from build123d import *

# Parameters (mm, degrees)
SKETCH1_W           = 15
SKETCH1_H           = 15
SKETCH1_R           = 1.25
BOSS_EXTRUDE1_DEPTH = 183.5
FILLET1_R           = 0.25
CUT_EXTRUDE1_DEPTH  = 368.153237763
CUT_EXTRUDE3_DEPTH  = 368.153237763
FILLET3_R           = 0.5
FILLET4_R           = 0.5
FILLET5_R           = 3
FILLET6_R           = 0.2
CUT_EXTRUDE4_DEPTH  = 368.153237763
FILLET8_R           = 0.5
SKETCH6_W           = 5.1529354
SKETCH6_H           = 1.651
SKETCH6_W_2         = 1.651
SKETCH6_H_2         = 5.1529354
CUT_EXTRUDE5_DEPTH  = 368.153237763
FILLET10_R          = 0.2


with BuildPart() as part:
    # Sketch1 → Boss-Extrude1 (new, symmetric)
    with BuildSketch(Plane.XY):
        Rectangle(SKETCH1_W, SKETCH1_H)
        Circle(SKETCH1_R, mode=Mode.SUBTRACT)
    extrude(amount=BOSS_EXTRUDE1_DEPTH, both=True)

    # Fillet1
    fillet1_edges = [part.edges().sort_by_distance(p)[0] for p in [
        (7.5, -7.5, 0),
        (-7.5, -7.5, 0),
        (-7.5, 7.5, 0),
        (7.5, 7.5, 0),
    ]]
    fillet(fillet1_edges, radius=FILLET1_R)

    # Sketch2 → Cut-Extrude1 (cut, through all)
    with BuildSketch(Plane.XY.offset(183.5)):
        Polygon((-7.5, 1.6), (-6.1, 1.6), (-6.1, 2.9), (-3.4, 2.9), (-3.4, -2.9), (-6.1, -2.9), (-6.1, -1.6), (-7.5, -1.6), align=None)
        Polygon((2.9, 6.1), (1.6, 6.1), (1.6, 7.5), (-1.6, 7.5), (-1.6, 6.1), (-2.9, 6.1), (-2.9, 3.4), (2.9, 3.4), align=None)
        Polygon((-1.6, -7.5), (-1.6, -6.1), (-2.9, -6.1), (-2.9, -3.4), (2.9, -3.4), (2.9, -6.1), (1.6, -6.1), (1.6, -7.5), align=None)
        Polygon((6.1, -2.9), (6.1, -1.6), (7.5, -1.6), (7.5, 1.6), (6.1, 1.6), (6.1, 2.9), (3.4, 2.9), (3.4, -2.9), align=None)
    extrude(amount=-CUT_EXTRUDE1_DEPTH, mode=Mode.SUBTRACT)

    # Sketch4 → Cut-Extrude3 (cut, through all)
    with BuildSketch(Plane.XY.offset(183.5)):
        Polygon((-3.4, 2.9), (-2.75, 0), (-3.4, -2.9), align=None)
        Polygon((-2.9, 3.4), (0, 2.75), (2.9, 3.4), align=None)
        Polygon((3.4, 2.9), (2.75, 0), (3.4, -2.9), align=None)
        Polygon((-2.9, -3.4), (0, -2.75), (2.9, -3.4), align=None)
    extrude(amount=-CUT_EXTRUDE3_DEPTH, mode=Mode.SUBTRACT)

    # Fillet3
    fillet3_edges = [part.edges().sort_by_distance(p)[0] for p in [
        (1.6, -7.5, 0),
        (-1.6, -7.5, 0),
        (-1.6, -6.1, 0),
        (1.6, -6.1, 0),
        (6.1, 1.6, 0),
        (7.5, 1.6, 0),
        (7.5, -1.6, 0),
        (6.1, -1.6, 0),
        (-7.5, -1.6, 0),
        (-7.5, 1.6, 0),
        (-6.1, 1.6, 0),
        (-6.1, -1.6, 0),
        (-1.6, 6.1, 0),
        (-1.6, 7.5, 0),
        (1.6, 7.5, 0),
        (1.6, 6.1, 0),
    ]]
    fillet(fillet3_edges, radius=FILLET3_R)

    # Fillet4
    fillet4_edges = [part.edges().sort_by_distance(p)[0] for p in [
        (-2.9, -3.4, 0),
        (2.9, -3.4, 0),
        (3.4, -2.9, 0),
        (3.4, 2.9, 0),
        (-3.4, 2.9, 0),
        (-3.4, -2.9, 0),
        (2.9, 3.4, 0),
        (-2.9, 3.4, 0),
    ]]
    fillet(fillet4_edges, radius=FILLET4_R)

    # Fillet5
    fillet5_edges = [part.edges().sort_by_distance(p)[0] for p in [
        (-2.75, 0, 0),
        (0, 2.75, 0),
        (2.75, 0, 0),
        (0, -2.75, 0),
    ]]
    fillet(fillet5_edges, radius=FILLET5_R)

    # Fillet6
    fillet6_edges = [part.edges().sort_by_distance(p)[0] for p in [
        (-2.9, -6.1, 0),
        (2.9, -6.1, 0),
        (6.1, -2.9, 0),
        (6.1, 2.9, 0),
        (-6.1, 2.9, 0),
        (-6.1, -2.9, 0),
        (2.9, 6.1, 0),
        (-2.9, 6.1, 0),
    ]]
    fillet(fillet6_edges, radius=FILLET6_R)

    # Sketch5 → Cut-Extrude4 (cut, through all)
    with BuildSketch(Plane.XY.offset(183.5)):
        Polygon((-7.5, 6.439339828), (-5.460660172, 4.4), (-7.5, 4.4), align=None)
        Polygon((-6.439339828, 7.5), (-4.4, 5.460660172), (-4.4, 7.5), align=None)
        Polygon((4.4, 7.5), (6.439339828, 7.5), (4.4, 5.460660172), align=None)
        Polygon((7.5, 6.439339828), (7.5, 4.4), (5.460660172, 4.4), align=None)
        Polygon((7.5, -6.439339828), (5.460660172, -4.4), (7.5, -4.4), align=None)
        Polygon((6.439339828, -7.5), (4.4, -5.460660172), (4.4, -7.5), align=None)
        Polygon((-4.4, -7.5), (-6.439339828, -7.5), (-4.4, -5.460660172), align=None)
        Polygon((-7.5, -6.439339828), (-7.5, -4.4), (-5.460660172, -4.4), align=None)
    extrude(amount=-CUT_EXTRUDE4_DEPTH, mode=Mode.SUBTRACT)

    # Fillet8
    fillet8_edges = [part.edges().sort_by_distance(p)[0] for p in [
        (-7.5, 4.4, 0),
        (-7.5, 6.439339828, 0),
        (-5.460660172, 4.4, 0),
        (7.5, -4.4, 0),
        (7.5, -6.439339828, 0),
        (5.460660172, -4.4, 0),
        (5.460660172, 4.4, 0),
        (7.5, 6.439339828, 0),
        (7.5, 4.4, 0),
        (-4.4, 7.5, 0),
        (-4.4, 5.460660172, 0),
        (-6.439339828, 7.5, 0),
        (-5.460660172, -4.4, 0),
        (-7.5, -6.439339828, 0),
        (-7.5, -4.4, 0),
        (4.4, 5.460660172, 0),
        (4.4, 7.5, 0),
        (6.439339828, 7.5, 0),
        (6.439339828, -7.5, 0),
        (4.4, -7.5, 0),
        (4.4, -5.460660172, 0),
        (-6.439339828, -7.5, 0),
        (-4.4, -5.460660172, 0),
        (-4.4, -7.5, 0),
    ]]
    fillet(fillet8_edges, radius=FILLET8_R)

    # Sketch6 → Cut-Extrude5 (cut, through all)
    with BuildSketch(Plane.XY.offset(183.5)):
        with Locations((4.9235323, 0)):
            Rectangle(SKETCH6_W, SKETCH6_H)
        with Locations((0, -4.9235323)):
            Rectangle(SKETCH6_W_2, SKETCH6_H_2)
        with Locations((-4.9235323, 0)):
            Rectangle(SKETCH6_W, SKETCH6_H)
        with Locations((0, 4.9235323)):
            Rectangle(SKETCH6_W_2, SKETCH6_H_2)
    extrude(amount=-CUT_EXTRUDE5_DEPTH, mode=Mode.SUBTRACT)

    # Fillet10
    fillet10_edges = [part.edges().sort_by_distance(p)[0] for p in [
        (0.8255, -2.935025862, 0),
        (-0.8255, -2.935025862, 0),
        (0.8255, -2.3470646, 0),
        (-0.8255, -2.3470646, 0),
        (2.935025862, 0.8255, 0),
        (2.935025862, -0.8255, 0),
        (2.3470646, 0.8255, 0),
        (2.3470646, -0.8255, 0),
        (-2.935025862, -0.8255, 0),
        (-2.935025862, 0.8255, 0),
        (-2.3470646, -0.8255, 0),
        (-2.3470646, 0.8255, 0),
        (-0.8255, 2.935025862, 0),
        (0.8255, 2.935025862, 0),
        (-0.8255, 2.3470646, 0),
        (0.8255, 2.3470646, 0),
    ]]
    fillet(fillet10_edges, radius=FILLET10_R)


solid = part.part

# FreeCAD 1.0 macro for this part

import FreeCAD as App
import Part
import Sketcher
Q = App.Units.Quantity


def edges_at(feature, points):
    """Names of the edges that pass closest to the given points."""
    edges = feature.Shape.Edges
    near = lambda p: min(range(len(edges)), key=lambda i: edges[i].distToShape(Part.Vertex(*p))[0])
    return sorted({f"Edge{near(p) + 1}" for p in points})


def add_polygon(sketch, points):
    """Adds a closed chain of lines whose ends are joined by coincident constraints."""
    first, n = sketch.GeometryCount, len(points)
    for a, b in zip(points, points[1:] + points[:1]):
        sketch.addGeometry(Part.LineSegment(App.Vector(*a, 0), App.Vector(*b, 0)), False)
    for i in range(n):
        sketch.addConstraint(Sketcher.Constraint("Coincident", first + i, 2, first + (i + 1) % n, 1))

doc = App.newDocument("Part")
body = doc.addObject("PartDesign::Body", "Body")

sketch1 = body.newObject("Sketcher::SketchObject", "Sketch")
sketch1.AttachmentSupport = (doc.getObject("XY_Plane"), [""])
sketch1.MapMode = "FlatFace"
add_polygon(sketch1, [(-7.5, 7.5), (-7.5, -7.5), (7.5, -7.5), (7.5, 7.5)])
sketch1.addGeometry(Part.Circle(App.Vector(0, 0, 0), App.Vector(0, 0, 1), 1.2), False)
sketch1.addConstraint(Sketcher.Constraint("Vertical", 0))
sketch1.addConstraint(Sketcher.Constraint("Horizontal", 1))
sketch1.addConstraint(Sketcher.Constraint("Vertical", 2))
sketch1.addConstraint(Sketcher.Constraint("Horizontal", 3))
sketch1.addConstraint(Sketcher.Constraint("Coincident", 4, 3, -1, 1))
sketch1.addConstraint(Sketcher.Constraint("Symmetric", 0, 2, 2, 2, -1, 1))
sketch1.addConstraint(Sketcher.Constraint("Equal", 3, 0))
sketch1.addConstraint(Sketcher.Constraint("Diameter", 4, Q("2.5 mm")))
sketch1.addConstraint(Sketcher.Constraint("DistanceX", 1, 1, 1, 2, Q("15 mm")))
pad1 = body.newObject("PartDesign::Pad", "Pad")
pad1.Profile = sketch1
pad1.Length = 367
pad1.Midplane = True
doc.recompute()

fillet = body.newObject("PartDesign::Fillet", "Fillet")
fillet.Base = (pad1, edges_at(pad1, [
    (7.5, -7.5, 0),
    (-7.5, -7.5, 0),
    (-7.5, 7.5, 0),
    (7.5, 7.5, 0),
]))
fillet.Radius = 0.25

sketch2 = body.newObject("Sketcher::SketchObject", "Sketch001")
sketch2.AttachmentSupport = (doc.getObject("XY_Plane"), [""])
sketch2.MapMode = "FlatFace"
sketch2.AttachmentOffset = App.Placement(App.Vector(0, 0, 183.5), App.Rotation())
add_polygon(sketch2, [(-6.1, 1.6), (-7.5, 1.6), (-7.5, -1.6), (-6.1, -1.6), (-6.1, -2.9), (-3.4, -2.9), (-3.4, 2.9), (-6.1, 2.9)])
add_polygon(sketch2, [(2.9, 6.1), (1.6, 6.1), (1.6, 7.5), (-1.6, 7.5), (-1.6, 6.1), (-2.9, 6.1), (-2.9, 3.4), (2.9, 3.4)])
add_polygon(sketch2, [(-1.6, -6.1), (-1.6, -7.5), (1.6, -7.5), (1.6, -6.1), (2.9, -6.1), (2.9, -3.4), (-2.9, -3.4), (-2.9, -6.1)])
add_polygon(sketch2, [(6.1, -2.9), (6.1, -1.6), (7.5, -1.6), (7.5, 1.6), (6.1, 1.6), (6.1, 2.9), (3.4, 2.9), (3.4, -2.9)])
sketch2.addConstraint(Sketcher.Constraint("Horizontal", 0))
sketch2.addConstraint(Sketcher.Constraint("Vertical", 1))
sketch2.addConstraint(Sketcher.Constraint("Horizontal", 2))
sketch2.addConstraint(Sketcher.Constraint("Vertical", 3))
sketch2.addConstraint(Sketcher.Constraint("Horizontal", 4))
sketch2.addConstraint(Sketcher.Constraint("Vertical", 5))
sketch2.addConstraint(Sketcher.Constraint("Horizontal", 6))
sketch2.addConstraint(Sketcher.Constraint("Vertical", 7))
sketch2.addConstraint(Sketcher.Constraint("Horizontal", 8))
sketch2.addConstraint(Sketcher.Constraint("Vertical", 9))
sketch2.addConstraint(Sketcher.Constraint("Horizontal", 10))
sketch2.addConstraint(Sketcher.Constraint("Vertical", 11))
sketch2.addConstraint(Sketcher.Constraint("Horizontal", 12))
sketch2.addConstraint(Sketcher.Constraint("Vertical", 13))
sketch2.addConstraint(Sketcher.Constraint("Horizontal", 14))
sketch2.addConstraint(Sketcher.Constraint("Vertical", 15))
sketch2.addConstraint(Sketcher.Constraint("Vertical", 16))
sketch2.addConstraint(Sketcher.Constraint("Horizontal", 17))
sketch2.addConstraint(Sketcher.Constraint("Vertical", 18))
sketch2.addConstraint(Sketcher.Constraint("Horizontal", 19))
sketch2.addConstraint(Sketcher.Constraint("Vertical", 20))
sketch2.addConstraint(Sketcher.Constraint("Horizontal", 21))
sketch2.addConstraint(Sketcher.Constraint("Vertical", 22))
sketch2.addConstraint(Sketcher.Constraint("Horizontal", 23))
sketch2.addConstraint(Sketcher.Constraint("Vertical", 24))
sketch2.addConstraint(Sketcher.Constraint("Horizontal", 25))
sketch2.addConstraint(Sketcher.Constraint("Vertical", 26))
sketch2.addConstraint(Sketcher.Constraint("Horizontal", 27))
sketch2.addConstraint(Sketcher.Constraint("Vertical", 28))
sketch2.addConstraint(Sketcher.Constraint("Horizontal", 29))
sketch2.addConstraint(Sketcher.Constraint("Vertical", 30))
sketch2.addConstraint(Sketcher.Constraint("Horizontal", 31))
sketch2.addConstraint(Sketcher.Constraint("Symmetric", 9, 2, 16, 2, -1, 1))
sketch2.addConstraint(Sketcher.Constraint("Symmetric", 11, 2, 18, 2, -1, 1))
sketch2.addConstraint(Sketcher.Constraint("Symmetric", 13, 2, 20, 2, -1, 1))
sketch2.addConstraint(Sketcher.Constraint("Symmetric", 15, 2, 22, 2, -1, 1))
sketch2.addConstraint(Sketcher.Constraint("Symmetric", 7, 2, 24, 2, -1, 1))
sketch2.addConstraint(Sketcher.Constraint("Symmetric", 1, 2, 26, 2, -1, 1))
sketch2.addConstraint(Sketcher.Constraint("Symmetric", 3, 2, 28, 2, -1, 1))
sketch2.addConstraint(Sketcher.Constraint("Symmetric", 5, 2, 30, 2, -1, 1))
sketch2.addConstraint(Sketcher.Constraint("Symmetric", 8, 2, 11, 2, -2))
sketch2.addConstraint(Sketcher.Constraint("Symmetric", 2, 2, 24, 2, -2))
sketch2.addConstraint(Sketcher.Constraint("Horizontal", 6, 2, 28, 2))
sketch2.addConstraint(Sketcher.Constraint("Vertical", 15, 2, 19, 2))
sketch2.addConstraint(Sketcher.Constraint("Equal", 17, 1))
sketch2.addConstraint(Sketcher.Constraint("Equal", 23, 3))
sketch2.addConstraint(Sketcher.Constraint("Equal", 27, 9))
sketch2.addConstraint(Sketcher.Constraint("Equal", 31, 13))
sketch2.addConstraint(Sketcher.Constraint("DistanceX", 0, 2, 0, 1, Q("1.4 mm")))
sketch2.addConstraint(Sketcher.Constraint("DistanceX", 4, 1, 4, 2, Q("2.7 mm")))
sketch2.addConstraint(Sketcher.Constraint("DistanceX", 8, 2, 8, 1, Q("1.3 mm")))
sketch2.addConstraint(Sketcher.Constraint("DistanceX", 10, 2, 10, 1, Q("3.2 mm")))
sketch2.addConstraint(Sketcher.Constraint("DistanceX", 5, 2, 8, 2, Q("5 mm")))
sketch2.addConstraint(Sketcher.Constraint("DistanceY", 4, 2, 8, 2, Q("9 mm")))
pocket1 = body.newObject("PartDesign::Pocket", "Pocket")
pocket1.Profile = sketch2
pocket1.Type = "ThroughAll"

sketch3 = body.newObject("Sketcher::SketchObject", "Sketch002")
sketch3.AttachmentSupport = (doc.getObject("XY_Plane"), [""])
sketch3.MapMode = "FlatFace"
sketch3.AttachmentOffset = App.Placement(App.Vector(0, 0, 183.5), App.Rotation())
add_polygon(sketch3, [(-2.8, 0), (-3.4, 2.9), (-3.4, -2.9)])
add_polygon(sketch3, [(-2.9, 3.4), (0, 2.8), (2.9, 3.4)])
add_polygon(sketch3, [(3.4, 2.9), (2.8, 0), (3.4, -2.9)])
add_polygon(sketch3, [(0, -2.8), (-2.9, -3.4), (2.9, -3.4)])
sketch3.addConstraint(Sketcher.Constraint("Vertical", 1))
sketch3.addConstraint(Sketcher.Constraint("Horizontal", 5))
sketch3.addConstraint(Sketcher.Constraint("Vertical", 8))
sketch3.addConstraint(Sketcher.Constraint("Horizontal", 10))
sketch3.addConstraint(Sketcher.Constraint("Symmetric", 2, 2, 6, 2, -1, 1))
sketch3.addConstraint(Sketcher.Constraint("Symmetric", 0, 2, 7, 2, -1, 1))
sketch3.addConstraint(Sketcher.Constraint("Symmetric", 4, 2, 9, 2, -1, 1))
sketch3.addConstraint(Sketcher.Constraint("Symmetric", 3, 2, 11, 2, -1, 1))
sketch3.addConstraint(Sketcher.Constraint("PointOnObject", 2, 2, -1))
sketch3.addConstraint(Sketcher.Constraint("PointOnObject", 3, 2, -2))
sketch3.addConstraint(Sketcher.Constraint("Perpendicular", 2, 3))
sketch3.addConstraint(Sketcher.Constraint("Perpendicular", 0, 4))
sketch3.addConstraint(Sketcher.Constraint("Perpendicular", 3, 6))
sketch3.addConstraint(Sketcher.Constraint("Perpendicular", 6, 11))
sketch3.addConstraint(Sketcher.Constraint("Horizontal", 1, 2, 7, 2))
sketch3.addConstraint(Sketcher.Constraint("Equal", 10, 1))
sketch3.addConstraint(Sketcher.Constraint("DistanceX", 5, 2, 5, 1, Q("5.8 mm")))
sketch3.addConstraint(Sketcher.Constraint("DistanceX", 0, 2, -1, 1, Q("3.4 mm")))
sketch3.addConstraint(Sketcher.Constraint("DistanceY", -1, 1, 4, 2, Q("3.4 mm")))
sketch3.addConstraint(Sketcher.Constraint("DistanceX", 2, 2, 6, 2, Q("5.5 mm")))
pocket2 = body.newObject("PartDesign::Pocket", "Pocket001")
pocket2.Profile = sketch3
pocket2.Type = "ThroughAll"
doc.recompute()

fillet2 = body.newObject("PartDesign::Fillet", "Fillet001")
fillet2.Base = (pocket2, edges_at(pocket2, [
    (1.6, -7.5, 0),
    (-1.6, -7.5, 0),
    (-1.6, -6.1, 0),
    (1.6, -6.1, 0),
    (6.1, 1.6, 0),
    (7.5, 1.6, 0),
    (7.5, -1.6, 0),
    (6.1, -1.6, 0),
    (-7.5, -1.6, 0),
    (-7.5, 1.6, 0),
    (-6.1, 1.6, 0),
    (-6.1, -1.6, 0),
    (-1.6, 6.1, 0),
    (-1.6, 7.5, 0),
    (1.6, 7.5, 0),
    (1.6, 6.1, 0),
]))
fillet2.Radius = 0.5
doc.recompute()

fillet3 = body.newObject("PartDesign::Fillet", "Fillet002")
fillet3.Base = (fillet2, edges_at(fillet2, [
    (-2.9, -3.4, 0),
    (2.9, -3.4, 0),
    (3.4, -2.9, 0),
    (3.4, 2.9, 0),
    (-3.4, 2.9, 0),
    (-3.4, -2.9, 0),
    (2.9, 3.4, 0),
    (-2.9, 3.4, 0),
]))
fillet3.Radius = 0.5
doc.recompute()

fillet4 = body.newObject("PartDesign::Fillet", "Fillet003")
fillet4.Base = (fillet3, edges_at(fillet3, [
    (-2.75, 0, 0),
    (0, 2.75, 0),
    (2.75, 0, 0),
    (0, -2.75, 0),
]))
fillet4.Radius = 3
doc.recompute()

fillet5 = body.newObject("PartDesign::Fillet", "Fillet004")
fillet5.Base = (fillet4, edges_at(fillet4, [
    (-2.9, -6.1, 0),
    (2.9, -6.1, 0),
    (6.1, -2.9, 0),
    (6.1, 2.9, 0),
    (-6.1, 2.9, 0),
    (-6.1, -2.9, 0),
    (2.9, 6.1, 0),
    (-2.9, 6.1, 0),
]))
fillet5.Radius = 0.2

sketch4 = body.newObject("Sketcher::SketchObject", "Sketch003")
sketch4.AttachmentSupport = (doc.getObject("XY_Plane"), [""])
sketch4.MapMode = "FlatFace"
sketch4.AttachmentOffset = App.Placement(App.Vector(0, 0, 183.5), App.Rotation())
add_polygon(sketch4, [(-5.5, 4.4), (-7.5, 6.4), (-7.5, 4.4)])
add_polygon(sketch4, [(-6.4, 7.5), (-4.4, 5.5), (-4.4, 7.5)])
add_polygon(sketch4, [(6.4, 7.5), (4.4, 7.5), (4.4, 5.5)])
add_polygon(sketch4, [(7.5, 4.4), (7.5, 6.4), (5.5, 4.4)])
add_polygon(sketch4, [(5.5, -4.4), (7.5, -6.4), (7.5, -4.4)])
add_polygon(sketch4, [(6.4, -7.5), (4.4, -5.5), (4.4, -7.5)])
add_polygon(sketch4, [(-6.4, -7.5), (-4.4, -7.5), (-4.4, -5.5)])
add_polygon(sketch4, [(-7.5, -4.4), (-7.5, -6.4), (-5.5, -4.4)])
sketch4.addConstraint(Sketcher.Constraint("Vertical", 1))
sketch4.addConstraint(Sketcher.Constraint("Horizontal", 2))
sketch4.addConstraint(Sketcher.Constraint("Vertical", 4))
sketch4.addConstraint(Sketcher.Constraint("Horizontal", 5))
sketch4.addConstraint(Sketcher.Constraint("Horizontal", 6))
sketch4.addConstraint(Sketcher.Constraint("Vertical", 7))
sketch4.addConstraint(Sketcher.Constraint("Vertical", 9))
sketch4.addConstraint(Sketcher.Constraint("Horizontal", 11))
sketch4.addConstraint(Sketcher.Constraint("Vertical", 13))
sketch4.addConstraint(Sketcher.Constraint("Horizontal", 14))
sketch4.addConstraint(Sketcher.Constraint("Vertical", 16))
sketch4.addConstraint(Sketcher.Constraint("Horizontal", 17))
sketch4.addConstraint(Sketcher.Constraint("Horizontal", 18))
sketch4.addConstraint(Sketcher.Constraint("Vertical", 19))
sketch4.addConstraint(Sketcher.Constraint("Vertical", 21))
sketch4.addConstraint(Sketcher.Constraint("Horizontal", 23))
sketch4.addConstraint(Sketcher.Constraint("Symmetric", 0, 2, 12, 2, -1, 1))
sketch4.addConstraint(Sketcher.Constraint("Symmetric", 2, 2, 14, 2, -1, 1))
sketch4.addConstraint(Sketcher.Constraint("Symmetric", 3, 2, 15, 2, -1, 1))
sketch4.addConstraint(Sketcher.Constraint("Symmetric", 5, 2, 17, 2, -1, 1))
sketch4.addConstraint(Sketcher.Constraint("Symmetric", 6, 2, 18, 2, -1, 1))
sketch4.addConstraint(Sketcher.Constraint("Symmetric", 9, 2, 21, 2, -1, 1))
sketch4.addConstraint(Sketcher.Constraint("Symmetric", 10, 2, 22, 2, -1, 1))
sketch4.addConstraint(Sketcher.Constraint("Symmetric", 4, 2, 6, 2, -2))
sketch4.addConstraint(Sketcher.Constraint("Symmetric", 0, 2, 9, 2, -2))
sketch4.addConstraint(Sketcher.Constraint("Symmetric", 2, 2, 10, 2, -2))
sketch4.addConstraint(Sketcher.Constraint("Parallel", 0, 3))
sketch4.addConstraint(Sketcher.Constraint("Perpendicular", 3, 8))
sketch4.addConstraint(Sketcher.Constraint("Parallel", 8, 10))
sketch4.addConstraint(Sketcher.Constraint("Perpendicular", 15, 20))
sketch4.addConstraint(Sketcher.Constraint("Horizontal", 3, 2, 7, 2))
sketch4.addConstraint(Sketcher.Constraint("Horizontal", 15, 2, 19, 2))
sketch4.addConstraint(Sketcher.Constraint("Equal", 2, 5))
sketch4.addConstraint(Sketcher.Constraint("DistanceX", 0, 2, -1, 1, Q("7.5 mm")))
sketch4.addConstraint(Sketcher.Constraint("DistanceY", -1, 1, 1, 2, Q("4.4 mm")))
sketch4.addConstraint(Sketcher.Constraint("DistanceX", 3, 2, -1, 1, Q("4.4 mm")))
sketch4.addConstraint(Sketcher.Constraint("DistanceY", -1, 1, 4, 2, Q("7.5 mm")))
sketch4.addConstraint(Sketcher.Constraint("DistanceX", 2, 1, 2, 2, Q("2.03934 mm")))
pocket3 = body.newObject("PartDesign::Pocket", "Pocket002")
pocket3.Profile = sketch4
pocket3.Type = "ThroughAll"
doc.recompute()

fillet6 = body.newObject("PartDesign::Fillet", "Fillet005")
fillet6.Base = (pocket3, edges_at(pocket3, [
    (-7.5, 4.4, 0),
    (-7.5, 6.439, 0),
    (-5.461, 4.4, 0),
    (7.5, -4.4, 0),
    (7.5, -6.439, 0),
    (5.461, -4.4, 0),
    (5.461, 4.4, 0),
    (7.5, 6.439, 0),
    (7.5, 4.4, 0),
    (-4.4, 7.5, 0),
    (-4.4, 5.461, 0),
    (-6.439, 7.5, 0),
    (-5.461, -4.4, 0),
    (-7.5, -6.439, 0),
    (-7.5, -4.4, 0),
    (4.4, 5.461, 0),
    (4.4, 7.5, 0),
    (6.439, 7.5, 0),
    (6.439, -7.5, 0),
    (4.4, -7.5, 0),
    (4.4, -5.461, 0),
    (-6.439, -7.5, 0),
    (-4.4, -5.461, 0),
    (-4.4, -7.5, 0),
]))
fillet6.Radius = 0.5

sketch5 = body.newObject("Sketcher::SketchObject", "Sketch004")
sketch5.AttachmentSupport = (doc.getObject("XY_Plane"), [""])
sketch5.MapMode = "FlatFace"
sketch5.AttachmentOffset = App.Placement(App.Vector(0, 0, 183.5), App.Rotation())
add_polygon(sketch5, [(2.3, 0.8), (2.3, -0.8), (7.5, -0.8), (7.5, 0.8)])
add_polygon(sketch5, [(-0.8, -2.3), (-0.8, -7.5), (0.8, -7.5), (0.8, -2.3)])
add_polygon(sketch5, [(-7.5, 0.8), (-7.5, -0.8), (-2.3, -0.8), (-2.3, 0.8)])
add_polygon(sketch5, [(-0.8, 7.5), (-0.8, 2.3), (0.8, 2.3), (0.8, 7.5)])
sketch5.addConstraint(Sketcher.Constraint("Vertical", 0))
sketch5.addConstraint(Sketcher.Constraint("Horizontal", 1))
sketch5.addConstraint(Sketcher.Constraint("Vertical", 2))
sketch5.addConstraint(Sketcher.Constraint("Horizontal", 3))
sketch5.addConstraint(Sketcher.Constraint("Vertical", 4))
sketch5.addConstraint(Sketcher.Constraint("Horizontal", 5))
sketch5.addConstraint(Sketcher.Constraint("Vertical", 6))
sketch5.addConstraint(Sketcher.Constraint("Horizontal", 7))
sketch5.addConstraint(Sketcher.Constraint("Vertical", 8))
sketch5.addConstraint(Sketcher.Constraint("Horizontal", 9))
sketch5.addConstraint(Sketcher.Constraint("Vertical", 10))
sketch5.addConstraint(Sketcher.Constraint("Horizontal", 11))
sketch5.addConstraint(Sketcher.Constraint("Vertical", 12))
sketch5.addConstraint(Sketcher.Constraint("Horizontal", 13))
sketch5.addConstraint(Sketcher.Constraint("Vertical", 14))
sketch5.addConstraint(Sketcher.Constraint("Horizontal", 15))
sketch5.addConstraint(Sketcher.Constraint("Symmetric", 2, 2, 8, 2, -1, 1))
sketch5.addConstraint(Sketcher.Constraint("Symmetric", 0, 2, 10, 2, -1, 1))
sketch5.addConstraint(Sketcher.Constraint("Symmetric", 6, 2, 12, 2, -1, 1))
sketch5.addConstraint(Sketcher.Constraint("Symmetric", 4, 2, 14, 2, -1, 1))
sketch5.addConstraint(Sketcher.Constraint("Horizontal", 1, 2, 8, 2))
sketch5.addConstraint(Sketcher.Constraint("Vertical", 7, 2, 12, 2))
sketch5.addConstraint(Sketcher.Constraint("Equal", 15, 0))
sketch5.addConstraint(Sketcher.Constraint("Equal", 11, 4))
sketch5.addConstraint(Sketcher.Constraint("DistanceX", -1, 1, 1, 2, Q("7.5 mm")))
sketch5.addConstraint(Sketcher.Constraint("DistanceY", 4, 2, -1, 1, Q("7.5 mm")))
sketch5.addConstraint(Sketcher.Constraint("DistanceX", 5, 1, 5, 2, Q("1.651 mm")))
sketch5.addConstraint(Sketcher.Constraint("DistanceX", 1, 1, 1, 2, Q("5.152935 mm")))
pocket4 = body.newObject("PartDesign::Pocket", "Pocket003")
pocket4.Profile = sketch5
pocket4.Type = "ThroughAll"
doc.recompute()

fillet7 = body.newObject("PartDesign::Fillet", "Fillet006")
fillet7.Base = (pocket4, edges_at(pocket4, [
    (0.826, -2.935, 0),
    (-0.826, -2.935, 0),
    (0.826, -2.347, 0),
    (-0.826, -2.347, 0),
    (2.935, 0.826, 0),
    (2.935, -0.826, 0),
    (2.347, 0.826, 0),
    (2.347, -0.826, 0),
    (-2.935, -0.826, 0),
    (-2.935, 0.826, 0),
    (-2.347, -0.826, 0),
    (-2.347, 0.826, 0),
    (-0.826, 2.935, 0),
    (0.826, 2.935, 0),
    (-0.826, 2.347, 0),
    (0.826, 2.347, 0),
]))
fillet7.Radius = 0.2

doc.recompute()
